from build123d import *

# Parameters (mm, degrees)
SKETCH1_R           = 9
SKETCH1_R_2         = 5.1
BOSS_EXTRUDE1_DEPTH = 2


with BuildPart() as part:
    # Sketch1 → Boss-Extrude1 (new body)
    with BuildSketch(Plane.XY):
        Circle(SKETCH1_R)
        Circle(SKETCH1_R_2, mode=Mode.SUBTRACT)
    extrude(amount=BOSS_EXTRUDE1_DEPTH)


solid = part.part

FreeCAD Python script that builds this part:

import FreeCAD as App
import Part
import Sketcher
from FreeCAD import Vector
Q = App.Units.Quantity

doc = App.newDocument("Part")
body = doc.addObject("PartDesign::Body", "Body")

# Sketch on XY plane
sketch1 = doc.addObject("Sketcher::SketchObject", "Sketch")
body.addObject(sketch1)
sketch1.AttachmentSupport = (doc.XY_Plane, [""])
sketch1.MapMode = "FlatFace"
sketch1.addGeometry([
    Part.Circle(Vector(0, 0, 0), Vector(0, 0, 1), 9),
    Part.Circle(Vector(0, 0, 0), Vector(0, 0, 1), 5),
], False)
sketch1.addConstraint([
    Sketcher.Constraint("Coincident", 0, 3, -1, 1),
    Sketcher.Constraint("Coincident", 1, 3, -1, 1),
    Sketcher.Constraint("Diameter", 0, Q("18 mm")),
    Sketcher.Constraint("Diameter", 1, Q("10.2 mm")),
])
pad1 = doc.addObject("PartDesign::Pad", "Pad")
body.addObject(pad1)
pad1.Profile = sketch1
pad1.Length = 2

doc.recompute()
